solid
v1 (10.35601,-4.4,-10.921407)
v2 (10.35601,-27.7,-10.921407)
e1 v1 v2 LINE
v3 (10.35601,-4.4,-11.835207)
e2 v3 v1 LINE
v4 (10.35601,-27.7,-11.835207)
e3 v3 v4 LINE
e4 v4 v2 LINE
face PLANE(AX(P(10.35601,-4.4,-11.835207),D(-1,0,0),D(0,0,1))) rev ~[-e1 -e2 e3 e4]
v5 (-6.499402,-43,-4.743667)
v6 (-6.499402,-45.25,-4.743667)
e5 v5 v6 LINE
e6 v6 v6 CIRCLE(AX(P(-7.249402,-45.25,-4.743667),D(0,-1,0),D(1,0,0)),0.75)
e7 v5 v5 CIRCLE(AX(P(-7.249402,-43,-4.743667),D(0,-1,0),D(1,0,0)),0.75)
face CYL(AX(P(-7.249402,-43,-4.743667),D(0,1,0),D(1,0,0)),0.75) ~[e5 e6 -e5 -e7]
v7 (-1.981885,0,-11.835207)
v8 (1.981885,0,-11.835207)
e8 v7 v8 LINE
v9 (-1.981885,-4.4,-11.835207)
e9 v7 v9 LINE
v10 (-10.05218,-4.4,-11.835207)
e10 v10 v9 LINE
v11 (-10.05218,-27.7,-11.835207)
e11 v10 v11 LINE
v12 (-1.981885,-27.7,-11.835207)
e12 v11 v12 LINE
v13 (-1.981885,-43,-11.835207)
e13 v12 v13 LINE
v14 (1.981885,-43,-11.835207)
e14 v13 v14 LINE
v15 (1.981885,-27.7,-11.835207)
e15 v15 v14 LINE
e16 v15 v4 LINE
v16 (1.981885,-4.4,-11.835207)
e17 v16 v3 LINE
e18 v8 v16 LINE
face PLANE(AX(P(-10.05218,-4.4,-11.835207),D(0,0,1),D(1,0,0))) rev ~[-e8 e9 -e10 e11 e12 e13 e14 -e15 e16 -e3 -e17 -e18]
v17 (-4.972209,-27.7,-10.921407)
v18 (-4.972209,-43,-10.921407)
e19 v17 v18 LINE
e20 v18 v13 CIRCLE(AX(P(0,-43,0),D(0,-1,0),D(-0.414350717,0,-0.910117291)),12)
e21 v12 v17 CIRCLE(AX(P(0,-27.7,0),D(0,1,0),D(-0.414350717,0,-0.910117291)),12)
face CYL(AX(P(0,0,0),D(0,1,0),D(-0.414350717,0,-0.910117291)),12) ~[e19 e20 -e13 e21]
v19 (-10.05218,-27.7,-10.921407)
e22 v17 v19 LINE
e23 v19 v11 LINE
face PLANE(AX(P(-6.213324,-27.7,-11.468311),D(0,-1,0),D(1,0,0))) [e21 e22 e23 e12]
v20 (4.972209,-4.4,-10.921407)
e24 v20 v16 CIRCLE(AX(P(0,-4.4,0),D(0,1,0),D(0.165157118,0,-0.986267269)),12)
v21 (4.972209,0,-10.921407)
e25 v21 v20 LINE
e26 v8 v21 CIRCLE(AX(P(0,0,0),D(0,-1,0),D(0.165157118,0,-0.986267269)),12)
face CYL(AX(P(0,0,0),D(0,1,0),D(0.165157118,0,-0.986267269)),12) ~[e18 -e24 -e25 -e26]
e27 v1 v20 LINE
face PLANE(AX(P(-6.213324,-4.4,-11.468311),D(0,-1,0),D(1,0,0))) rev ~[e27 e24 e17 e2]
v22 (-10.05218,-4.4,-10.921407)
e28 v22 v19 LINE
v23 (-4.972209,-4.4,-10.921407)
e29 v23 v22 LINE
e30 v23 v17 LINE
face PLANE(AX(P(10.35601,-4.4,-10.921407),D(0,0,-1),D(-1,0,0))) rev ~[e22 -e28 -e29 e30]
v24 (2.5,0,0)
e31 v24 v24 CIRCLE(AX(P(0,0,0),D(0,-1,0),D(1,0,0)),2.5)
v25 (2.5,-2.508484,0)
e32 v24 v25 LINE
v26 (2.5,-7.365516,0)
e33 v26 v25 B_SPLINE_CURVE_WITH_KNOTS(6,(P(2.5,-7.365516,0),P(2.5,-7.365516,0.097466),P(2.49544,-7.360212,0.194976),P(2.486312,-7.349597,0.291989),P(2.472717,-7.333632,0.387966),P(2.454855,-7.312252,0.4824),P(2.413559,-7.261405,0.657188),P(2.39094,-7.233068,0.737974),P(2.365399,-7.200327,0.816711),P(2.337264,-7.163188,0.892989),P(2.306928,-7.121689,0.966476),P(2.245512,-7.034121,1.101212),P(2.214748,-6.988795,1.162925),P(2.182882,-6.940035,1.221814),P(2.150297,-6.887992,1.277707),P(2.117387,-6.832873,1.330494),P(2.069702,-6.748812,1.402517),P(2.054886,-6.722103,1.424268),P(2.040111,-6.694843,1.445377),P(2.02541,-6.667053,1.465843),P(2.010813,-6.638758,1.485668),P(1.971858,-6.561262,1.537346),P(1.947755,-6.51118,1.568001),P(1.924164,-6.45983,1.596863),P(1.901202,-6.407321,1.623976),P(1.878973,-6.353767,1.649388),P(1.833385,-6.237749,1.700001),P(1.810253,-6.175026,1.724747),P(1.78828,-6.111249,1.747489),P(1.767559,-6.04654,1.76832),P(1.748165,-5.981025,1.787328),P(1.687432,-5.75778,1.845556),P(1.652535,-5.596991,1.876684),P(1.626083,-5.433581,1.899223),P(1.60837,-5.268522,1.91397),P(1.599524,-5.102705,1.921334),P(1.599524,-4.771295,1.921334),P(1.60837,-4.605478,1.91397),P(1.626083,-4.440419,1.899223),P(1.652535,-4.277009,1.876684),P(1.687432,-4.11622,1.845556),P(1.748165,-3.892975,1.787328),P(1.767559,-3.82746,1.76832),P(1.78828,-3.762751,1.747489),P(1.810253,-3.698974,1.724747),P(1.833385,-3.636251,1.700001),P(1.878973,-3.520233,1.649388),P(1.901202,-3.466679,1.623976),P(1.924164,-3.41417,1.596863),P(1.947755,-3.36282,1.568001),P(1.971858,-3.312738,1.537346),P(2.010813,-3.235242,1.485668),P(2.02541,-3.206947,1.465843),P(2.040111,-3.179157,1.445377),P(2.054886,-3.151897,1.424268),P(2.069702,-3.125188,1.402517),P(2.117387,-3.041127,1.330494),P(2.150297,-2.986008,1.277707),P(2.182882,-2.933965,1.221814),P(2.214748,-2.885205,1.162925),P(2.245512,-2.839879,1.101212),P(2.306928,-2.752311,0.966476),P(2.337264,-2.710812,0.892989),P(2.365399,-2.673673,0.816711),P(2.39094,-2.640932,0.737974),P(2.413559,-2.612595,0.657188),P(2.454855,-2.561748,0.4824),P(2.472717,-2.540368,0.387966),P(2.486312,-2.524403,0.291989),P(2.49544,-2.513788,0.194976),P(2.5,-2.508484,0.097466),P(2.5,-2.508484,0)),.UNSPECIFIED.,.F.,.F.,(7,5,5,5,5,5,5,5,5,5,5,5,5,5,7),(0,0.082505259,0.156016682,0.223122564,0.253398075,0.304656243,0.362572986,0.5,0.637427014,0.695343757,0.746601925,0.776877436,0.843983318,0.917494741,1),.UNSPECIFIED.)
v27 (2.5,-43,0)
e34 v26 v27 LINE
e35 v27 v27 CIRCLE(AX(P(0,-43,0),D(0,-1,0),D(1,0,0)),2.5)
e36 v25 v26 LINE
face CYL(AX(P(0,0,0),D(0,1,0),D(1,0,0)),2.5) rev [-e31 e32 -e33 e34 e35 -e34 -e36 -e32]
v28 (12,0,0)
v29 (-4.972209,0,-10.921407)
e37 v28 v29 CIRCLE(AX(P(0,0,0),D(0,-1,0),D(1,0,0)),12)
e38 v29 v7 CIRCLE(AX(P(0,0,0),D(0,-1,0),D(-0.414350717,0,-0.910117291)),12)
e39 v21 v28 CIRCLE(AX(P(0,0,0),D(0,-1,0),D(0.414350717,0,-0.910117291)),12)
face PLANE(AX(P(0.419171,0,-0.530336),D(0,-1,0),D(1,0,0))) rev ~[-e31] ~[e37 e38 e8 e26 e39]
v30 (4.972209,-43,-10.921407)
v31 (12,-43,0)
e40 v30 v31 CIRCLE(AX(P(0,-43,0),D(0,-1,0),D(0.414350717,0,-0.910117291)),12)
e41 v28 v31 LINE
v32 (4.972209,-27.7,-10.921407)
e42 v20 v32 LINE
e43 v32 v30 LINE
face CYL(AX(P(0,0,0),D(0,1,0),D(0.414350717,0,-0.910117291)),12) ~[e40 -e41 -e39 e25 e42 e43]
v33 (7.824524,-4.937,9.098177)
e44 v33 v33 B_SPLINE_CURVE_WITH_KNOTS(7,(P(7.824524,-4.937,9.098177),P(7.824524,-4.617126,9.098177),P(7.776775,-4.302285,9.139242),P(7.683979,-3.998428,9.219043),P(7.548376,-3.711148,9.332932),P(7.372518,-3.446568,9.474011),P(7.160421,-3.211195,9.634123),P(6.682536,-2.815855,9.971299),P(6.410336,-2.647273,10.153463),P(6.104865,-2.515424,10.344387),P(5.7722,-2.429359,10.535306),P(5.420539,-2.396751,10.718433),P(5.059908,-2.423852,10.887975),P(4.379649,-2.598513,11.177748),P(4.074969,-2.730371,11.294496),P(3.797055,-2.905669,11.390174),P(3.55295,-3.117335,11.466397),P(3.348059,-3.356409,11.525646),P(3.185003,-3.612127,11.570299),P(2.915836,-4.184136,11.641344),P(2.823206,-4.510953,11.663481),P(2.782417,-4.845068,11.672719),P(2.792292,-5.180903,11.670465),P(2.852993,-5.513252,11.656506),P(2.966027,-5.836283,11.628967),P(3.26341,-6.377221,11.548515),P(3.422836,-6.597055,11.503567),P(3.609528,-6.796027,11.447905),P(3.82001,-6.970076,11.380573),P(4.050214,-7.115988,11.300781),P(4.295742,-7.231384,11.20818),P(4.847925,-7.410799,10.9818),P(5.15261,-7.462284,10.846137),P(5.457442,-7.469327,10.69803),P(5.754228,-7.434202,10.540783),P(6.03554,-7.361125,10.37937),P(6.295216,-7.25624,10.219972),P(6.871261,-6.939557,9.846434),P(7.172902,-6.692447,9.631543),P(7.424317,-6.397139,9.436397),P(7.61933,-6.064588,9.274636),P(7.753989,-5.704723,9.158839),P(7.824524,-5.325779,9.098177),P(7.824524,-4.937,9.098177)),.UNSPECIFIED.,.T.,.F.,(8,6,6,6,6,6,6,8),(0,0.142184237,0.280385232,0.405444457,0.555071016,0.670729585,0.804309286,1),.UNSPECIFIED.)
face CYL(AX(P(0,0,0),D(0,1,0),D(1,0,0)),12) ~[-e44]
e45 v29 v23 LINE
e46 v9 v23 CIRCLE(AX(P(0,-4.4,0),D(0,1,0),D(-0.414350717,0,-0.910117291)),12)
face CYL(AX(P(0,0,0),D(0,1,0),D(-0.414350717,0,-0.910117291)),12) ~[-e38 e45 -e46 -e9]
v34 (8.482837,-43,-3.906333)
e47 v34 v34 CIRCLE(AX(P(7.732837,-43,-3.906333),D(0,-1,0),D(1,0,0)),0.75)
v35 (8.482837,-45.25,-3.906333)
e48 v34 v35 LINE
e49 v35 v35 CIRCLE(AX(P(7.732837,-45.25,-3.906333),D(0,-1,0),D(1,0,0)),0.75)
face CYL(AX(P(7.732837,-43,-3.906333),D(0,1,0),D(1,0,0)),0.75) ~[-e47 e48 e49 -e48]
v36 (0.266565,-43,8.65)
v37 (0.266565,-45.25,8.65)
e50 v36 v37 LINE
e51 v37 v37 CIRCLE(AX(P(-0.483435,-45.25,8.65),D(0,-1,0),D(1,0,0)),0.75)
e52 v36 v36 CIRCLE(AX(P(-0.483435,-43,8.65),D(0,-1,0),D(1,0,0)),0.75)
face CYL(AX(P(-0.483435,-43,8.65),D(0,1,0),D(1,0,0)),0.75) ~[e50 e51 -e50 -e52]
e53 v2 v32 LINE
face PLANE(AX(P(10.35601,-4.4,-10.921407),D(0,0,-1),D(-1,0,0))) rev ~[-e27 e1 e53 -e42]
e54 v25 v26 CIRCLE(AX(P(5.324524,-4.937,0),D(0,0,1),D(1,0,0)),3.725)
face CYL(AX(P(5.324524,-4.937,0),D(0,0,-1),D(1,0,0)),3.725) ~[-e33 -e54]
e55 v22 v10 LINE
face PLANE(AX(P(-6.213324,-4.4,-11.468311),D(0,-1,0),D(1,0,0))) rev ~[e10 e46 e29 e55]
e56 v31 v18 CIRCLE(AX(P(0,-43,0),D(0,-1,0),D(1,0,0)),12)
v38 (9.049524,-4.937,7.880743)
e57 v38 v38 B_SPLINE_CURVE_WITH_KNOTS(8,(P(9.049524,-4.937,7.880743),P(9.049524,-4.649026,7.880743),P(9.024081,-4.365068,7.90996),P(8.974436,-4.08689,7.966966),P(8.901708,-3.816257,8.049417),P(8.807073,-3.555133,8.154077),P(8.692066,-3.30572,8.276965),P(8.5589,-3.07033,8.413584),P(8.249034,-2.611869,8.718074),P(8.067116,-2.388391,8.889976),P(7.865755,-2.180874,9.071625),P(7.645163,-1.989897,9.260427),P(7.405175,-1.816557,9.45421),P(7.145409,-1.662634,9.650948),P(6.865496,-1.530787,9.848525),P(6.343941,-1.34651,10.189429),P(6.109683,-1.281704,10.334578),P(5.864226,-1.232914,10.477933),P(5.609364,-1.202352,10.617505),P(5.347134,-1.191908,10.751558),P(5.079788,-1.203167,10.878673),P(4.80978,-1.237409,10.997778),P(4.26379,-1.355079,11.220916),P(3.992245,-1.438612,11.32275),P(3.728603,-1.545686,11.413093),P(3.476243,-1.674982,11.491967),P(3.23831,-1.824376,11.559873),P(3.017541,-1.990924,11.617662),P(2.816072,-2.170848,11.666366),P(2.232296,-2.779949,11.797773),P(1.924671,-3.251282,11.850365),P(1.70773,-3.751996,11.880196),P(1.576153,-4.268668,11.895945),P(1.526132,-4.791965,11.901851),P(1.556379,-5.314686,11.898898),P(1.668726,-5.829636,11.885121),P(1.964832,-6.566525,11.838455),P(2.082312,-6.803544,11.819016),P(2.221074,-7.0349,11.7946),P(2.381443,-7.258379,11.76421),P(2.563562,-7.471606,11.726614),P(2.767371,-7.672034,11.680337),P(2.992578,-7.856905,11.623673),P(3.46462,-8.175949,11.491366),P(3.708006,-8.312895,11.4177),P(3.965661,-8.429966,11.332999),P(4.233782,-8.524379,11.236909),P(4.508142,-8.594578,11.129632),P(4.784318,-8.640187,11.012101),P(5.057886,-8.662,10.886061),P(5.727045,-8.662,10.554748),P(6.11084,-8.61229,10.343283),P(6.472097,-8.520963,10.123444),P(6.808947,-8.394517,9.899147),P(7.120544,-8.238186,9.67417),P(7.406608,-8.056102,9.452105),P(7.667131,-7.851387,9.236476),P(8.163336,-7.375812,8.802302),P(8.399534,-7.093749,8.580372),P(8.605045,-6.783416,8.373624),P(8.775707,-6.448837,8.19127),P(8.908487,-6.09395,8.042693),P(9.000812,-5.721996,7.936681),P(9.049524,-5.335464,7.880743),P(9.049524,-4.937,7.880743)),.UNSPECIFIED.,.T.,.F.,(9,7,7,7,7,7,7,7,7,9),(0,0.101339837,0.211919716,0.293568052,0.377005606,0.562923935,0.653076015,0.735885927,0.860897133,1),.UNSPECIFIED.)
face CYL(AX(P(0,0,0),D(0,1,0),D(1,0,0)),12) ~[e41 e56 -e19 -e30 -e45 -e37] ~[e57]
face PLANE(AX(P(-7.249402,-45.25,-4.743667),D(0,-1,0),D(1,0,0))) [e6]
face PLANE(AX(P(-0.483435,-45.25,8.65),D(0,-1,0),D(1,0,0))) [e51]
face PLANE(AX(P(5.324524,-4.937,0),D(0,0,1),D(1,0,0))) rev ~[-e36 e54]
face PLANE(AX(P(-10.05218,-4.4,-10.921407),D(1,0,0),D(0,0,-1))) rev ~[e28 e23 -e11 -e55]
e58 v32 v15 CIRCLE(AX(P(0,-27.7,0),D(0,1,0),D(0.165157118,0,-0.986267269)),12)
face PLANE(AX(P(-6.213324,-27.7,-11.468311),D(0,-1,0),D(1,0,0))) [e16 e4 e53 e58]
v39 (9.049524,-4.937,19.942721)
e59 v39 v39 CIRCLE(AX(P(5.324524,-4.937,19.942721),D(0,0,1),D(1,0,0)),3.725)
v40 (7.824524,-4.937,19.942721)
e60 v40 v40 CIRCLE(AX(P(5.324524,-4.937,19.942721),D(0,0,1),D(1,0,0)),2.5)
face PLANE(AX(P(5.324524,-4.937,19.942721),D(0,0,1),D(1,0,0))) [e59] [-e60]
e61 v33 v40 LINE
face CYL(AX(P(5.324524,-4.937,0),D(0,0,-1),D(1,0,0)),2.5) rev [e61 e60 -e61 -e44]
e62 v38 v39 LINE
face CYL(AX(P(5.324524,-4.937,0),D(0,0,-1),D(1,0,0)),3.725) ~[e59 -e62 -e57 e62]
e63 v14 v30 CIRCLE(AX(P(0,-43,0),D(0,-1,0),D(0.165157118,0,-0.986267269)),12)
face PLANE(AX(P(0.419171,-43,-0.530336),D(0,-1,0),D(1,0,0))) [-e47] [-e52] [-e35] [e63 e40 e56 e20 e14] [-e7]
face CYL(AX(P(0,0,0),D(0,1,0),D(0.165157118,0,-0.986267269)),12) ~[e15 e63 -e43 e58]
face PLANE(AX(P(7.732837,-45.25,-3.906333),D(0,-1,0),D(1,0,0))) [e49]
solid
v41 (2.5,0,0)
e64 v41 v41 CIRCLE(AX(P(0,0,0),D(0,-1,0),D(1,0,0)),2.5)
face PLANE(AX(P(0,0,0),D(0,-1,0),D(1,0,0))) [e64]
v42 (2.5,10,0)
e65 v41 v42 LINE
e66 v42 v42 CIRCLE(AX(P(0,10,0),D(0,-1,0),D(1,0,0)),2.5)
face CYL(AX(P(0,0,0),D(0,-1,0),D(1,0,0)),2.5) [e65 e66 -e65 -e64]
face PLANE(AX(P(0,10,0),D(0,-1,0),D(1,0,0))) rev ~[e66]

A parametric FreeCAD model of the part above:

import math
import FreeCAD as App
import Part
import Sketcher
from FreeCAD import Vector
Q = App.Units.Quantity


def add_polygon(sketch, points):
    """Adds a closed chain of lines whose ends are joined by coincident constraints."""
    first, n = sketch.GeometryCount, len(points)
    for a, b in zip(points, points[1:] + points[:1]):
        sketch.addGeometry(Part.LineSegment(App.Vector(*a, 0), App.Vector(*b, 0)), False)
    for i in range(n):
        sketch.addConstraint(Sketcher.Constraint("Coincident", first + i, 2, first + (i + 1) % n, 1))

doc = App.newDocument("Part")
body = doc.addObject("PartDesign::Body", "Body")

# Sketch on XZ plane
sketch1 = body.newObject("Sketcher::SketchObject", "Sketch")
sketch1.AttachmentSupport = (doc.getObject("XZ_Plane"), [""])
sketch1.MapMode = "FlatFace"
sketch1.addGeometry([
    Part.ArcOfCircle(Part.Circle(Vector(0, 0, 0), Vector(0, 0, 1), 12), math.radians(-65.521565), math.radians(0)),  # 0
    Part.ArcOfCircle(Part.Circle(Vector(0, 0, 0), Vector(0, 0, 1), 12), math.radians(0), math.radians(245.521565)),  # 1
    Part.ArcOfCircle(Part.Circle(Vector(0, 0, 0), Vector(0, 0, 1), 12), math.radians(-114.478435), math.radians(-99.506362)),  # 2
    Part.LineSegment(Vector(-1.981885, -11.835207, 0), Vector(1.981885, -11.835207, 0)),  # 3
    Part.ArcOfCircle(Part.Circle(Vector(0, 0, 0), Vector(0, 0, 1), 12), math.radians(-80.493638), math.radians(-65.521565)),  # 4
    Part.Circle(Vector(0, 0, 0), Vector(0, 0, 1), 2.5),  # 5
], False)
sketch1.addConstraint([
    Sketcher.Constraint("Tangent", 0, 2, 1, 1),
    Sketcher.Constraint("Tangent", 1, 2, 2, 1),
    Sketcher.Constraint("Coincident", 2, 2, 3, 1),
    Sketcher.Constraint("Coincident", 3, 2, 4, 1),
    Sketcher.Constraint("Tangent", 4, 2, 0, 1),
    Sketcher.Constraint("Horizontal", 3),
    Sketcher.Constraint("Coincident", 0, 3, -1, 1),
    Sketcher.Constraint("Coincident", 2, 3, -1, 1),
    Sketcher.Constraint("Coincident", 5, 3, -1, 1),
    Sketcher.Constraint("Equal", 2, 4),
    Sketcher.Constraint("PointOnObject", 0, 2, -1),
    Sketcher.Constraint("Horizontal", 1, 2, 4, 2),
    Sketcher.Constraint("Diameter", 5, Q("5 mm")),
    Sketcher.Constraint("Radius", 0, Q("12 mm")),
    Sketcher.Constraint("DistanceX", 3, 1, 3, 2, Q("3.963771 mm")),
    Sketcher.Constraint("DistanceY", 2, 2, 1, 2, Q("0.9138 mm")),
])
pad1 = body.newObject("PartDesign::Pad", "Pad")
pad1.Profile = sketch1
pad1.Length = 43

# Sketch on XZ plane
sketch2 = body.newObject("Sketcher::SketchObject", "Sketch001")
sketch2.AttachmentSupport = (doc.getObject("XZ_Plane"), [""])
sketch2.MapMode = "FlatFace"
sketch2.AttachmentOffset = App.Placement(Vector(0, 0, 4.4), App.Rotation())
add_polygon(sketch2, [(-10.05218, -10.921407), (-10.05218, -11.835207), (10.35601, -11.835207), (10.35601, -10.921407)])  # lines 0-3
sketch2.addConstraint([
    Sketcher.Constraint("Vertical", 0),
    Sketcher.Constraint("Horizontal", 1),
    Sketcher.Constraint("Vertical", 2),
    Sketcher.Constraint("Horizontal", 3),
    Sketcher.Constraint("DistanceY", 0, 2, 0, 1, Q("0.9138 mm")),
    Sketcher.Constraint("DistanceX", 1, 1, 1, 2, Q("20.40819 mm")),
    Sketcher.Constraint("DistanceX", 0, 2, -1, 1, Q("10.05218 mm")),
    Sketcher.Constraint("DistanceY", 0, 2, -1, 1, Q("11.835207 mm")),
])
pad2 = body.newObject("PartDesign::Pad", "Pad001")
pad2.Profile = sketch2
pad2.Length = 23.3

# Sketch on XY plane
sketch3 = body.newObject("Sketcher::SketchObject", "Sketch002")
sketch3.AttachmentSupport = (doc.getObject("XY_Plane"), [""])
sketch3.MapMode = "FlatFace"
sketch3.addGeometry([
    Part.Circle(Vector(5.324524, -4.937, 0), Vector(0, 0, 1), 3.725),
    Part.Circle(Vector(5.324524, -4.937, 0), Vector(0, 0, 1), 2.5),
], False)
sketch3.addConstraint([
    Sketcher.Constraint("Coincident", 1, 3, 0, 3),
    Sketcher.Constraint("Diameter", 1, Q("5 mm")),
    Sketcher.Constraint("Diameter", 0, Q("7.45 mm")),
    Sketcher.Constraint("DistanceY", 0, 3, -1, 1, Q("4.937 mm")),
    Sketcher.Constraint("DistanceX", -1, 1, 0, 3, Q("5.324524 mm")),
])
pad3 = body.newObject("PartDesign::Pad", "Pad002")
pad3.Profile = sketch3
pad3.Length = 19.942721

# Sketch on XZ plane
sketch4 = body.newObject("Sketcher::SketchObject", "Sketch003")
sketch4.AttachmentSupport = (doc.getObject("XZ_Plane"), [""])
sketch4.MapMode = "FlatFace"
sketch4.AttachmentOffset = App.Placement(Vector(0, 0, 43), App.Rotation())
sketch4.addGeometry([
    Part.Circle(Vector(-0.483435, 8.65, 0), Vector(0, 0, 1), 0.75),
    Part.Circle(Vector(-7.249402, -4.743667, 0), Vector(0, 0, 1), 0.75),
    Part.Circle(Vector(7.732837, -3.906333, 0), Vector(0, 0, 1), 0.75),
], False)
sketch4.addConstraint([
    Sketcher.Constraint("Equal", 0, 1),
    Sketcher.Constraint("Equal", 1, 2),
    Sketcher.Constraint("Diameter", 0, Q("1.5 mm")),
    Sketcher.Constraint("DistanceY", -1, 1, 0, 3, Q("8.65 mm")),
    Sketcher.Constraint("DistanceX", 1, 3, 2, 3, Q("14.982239 mm")),
    Sketcher.Constraint("DistanceX", 0, 3, -1, 1, Q("0.483435 mm")),
    Sketcher.Constraint("DistanceX", 1, 3, -1, 1, Q("7.249402 mm")),
    Sketcher.Constraint("DistanceY", 1, 3, -1, 1, Q("4.743667 mm")),
    Sketcher.Constraint("DistanceY", 2, 3, -1, 1, Q("3.906333 mm")),
])
pad4 = body.newObject("PartDesign::Pad", "Pad003")
pad4.Profile = sketch4
pad4.Length = 2.25
body2 = doc.addObject("PartDesign::Body", "Body001")

# Sketch on XZ plane
sketch5 = body2.newObject("Sketcher::SketchObject", "Sketch004")
sketch5.AttachmentSupport = (doc.getObject("XZ_Plane001"), [""])
sketch5.MapMode = "FlatFace"
sketch5.addGeometry(Part.Circle(Vector(0, 0, 0), Vector(0, 0, 1), 2.5), False)
sketch5.addConstraint([
    Sketcher.Constraint("Coincident", 0, 3, -1, 1),
    Sketcher.Constraint("Diameter", 0, Q("5 mm")),
])
pad5 = body2.newObject("PartDesign::Pad", "Pad004")
pad5.Profile = sketch5
pad5.Length = 10
pad5.Reversed = True

doc.recompute()
